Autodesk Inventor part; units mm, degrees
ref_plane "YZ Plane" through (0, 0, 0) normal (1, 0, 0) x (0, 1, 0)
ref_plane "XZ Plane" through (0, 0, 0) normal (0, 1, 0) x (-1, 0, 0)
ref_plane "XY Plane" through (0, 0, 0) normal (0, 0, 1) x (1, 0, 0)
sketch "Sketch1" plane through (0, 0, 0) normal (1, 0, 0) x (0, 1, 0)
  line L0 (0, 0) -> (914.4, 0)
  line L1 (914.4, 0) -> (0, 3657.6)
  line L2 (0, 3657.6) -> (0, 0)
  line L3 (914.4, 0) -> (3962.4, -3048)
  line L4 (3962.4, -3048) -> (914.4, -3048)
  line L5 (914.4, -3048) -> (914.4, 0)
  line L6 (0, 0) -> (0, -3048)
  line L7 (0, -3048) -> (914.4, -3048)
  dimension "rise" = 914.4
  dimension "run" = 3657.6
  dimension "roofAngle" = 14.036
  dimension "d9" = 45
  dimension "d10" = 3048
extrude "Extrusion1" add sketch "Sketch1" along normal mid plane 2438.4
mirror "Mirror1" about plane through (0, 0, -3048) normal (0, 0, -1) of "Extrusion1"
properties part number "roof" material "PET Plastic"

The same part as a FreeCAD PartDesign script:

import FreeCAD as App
import Part
import Sketcher
Q = App.Units.Quantity

doc = App.newDocument("Part")
body = doc.addObject("PartDesign::Body", "Body")

# Sketch on YZ plane
sketch1 = body.newObject("Sketcher::SketchObject", "Sketch")
sketch1.AttachmentSupport = (doc.getObject("YZ_Plane"), [""])
sketch1.MapMode = "FlatFace"
sketch1.addGeometry([
    Part.LineSegment(App.Vector(0, 3657.6, 0), App.Vector(0, -3048, 0)),
    Part.LineSegment(App.Vector(0, -3048, 0), App.Vector(3962.4, -3048, 0)),
    Part.LineSegment(App.Vector(3962.4, -3048, 0), App.Vector(914.4, 0, 0)),
    Part.LineSegment(App.Vector(914.4, 0, 0), App.Vector(0, 3657.6, 0)),
], False)
sketch1.addConstraint([
    Sketcher.Constraint("Coincident", 0, 2, 1, 1),
    Sketcher.Constraint("Coincident", 1, 2, 2, 1),
    Sketcher.Constraint("Coincident", 2, 2, 3, 1),
    Sketcher.Constraint("Coincident", 3, 2, 0, 1),
    Sketcher.Constraint("Vertical", 0),
    Sketcher.Constraint("Horizontal", 1),
    Sketcher.Constraint("PointOnObject", 0, 2, -2),
    Sketcher.Constraint("PointOnObject", 2, 2, -1),
    Sketcher.Constraint("DistanceY", 0, 2, -1, 1, Q("120 in")),
    Sketcher.Constraint("DistanceX", -1, 1, 2, 2, Q("36 in")),
    Sketcher.Constraint("DistanceY", -1, 1, 3, 2, Q("144 in")),
    Sketcher.Constraint("DistanceX", 2, 2, 1, 2, Q("120 in")),
])
pad1 = body.newObject("PartDesign::Pad", "Pad")
pad1.Profile = sketch1
pad1.Length = Q("96 in")
pad1.Midplane = True
doc.recompute()

datumplane = body.newObject("PartDesign::Plane", "DatumPlane")
datumplane.AttachmentSupport = (doc.getObject("XY_Plane"), [""])
datumplane.MapMode = "FlatFace"
datumplane.AttachmentOffset = App.Placement(App.Vector(0, 0, -120 * 25.4), App.Rotation())
mirrored = body.newObject("PartDesign::Mirrored", "Mirrored")
mirrored.Originals = [pad1]
mirrored.MirrorPlane = (datumplane, [""])
body.Tip = mirrored

doc.recompute()
